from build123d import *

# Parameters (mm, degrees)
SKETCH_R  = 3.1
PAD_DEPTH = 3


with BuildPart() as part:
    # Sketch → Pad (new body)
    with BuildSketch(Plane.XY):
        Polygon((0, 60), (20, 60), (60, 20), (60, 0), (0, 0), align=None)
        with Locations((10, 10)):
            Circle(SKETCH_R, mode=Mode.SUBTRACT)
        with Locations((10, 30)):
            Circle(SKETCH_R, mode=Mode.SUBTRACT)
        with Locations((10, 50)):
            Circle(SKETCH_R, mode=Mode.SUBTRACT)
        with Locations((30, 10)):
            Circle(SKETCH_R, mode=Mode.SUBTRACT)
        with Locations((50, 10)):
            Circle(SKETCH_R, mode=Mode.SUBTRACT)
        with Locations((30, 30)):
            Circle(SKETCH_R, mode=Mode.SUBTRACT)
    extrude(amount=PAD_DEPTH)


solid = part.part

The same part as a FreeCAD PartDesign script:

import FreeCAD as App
import Part
import Sketcher

V = App.Vector


def add_polygon(sketch, points):
    """Adds a closed chain of lines whose ends are joined by coincident constraints."""
    first, n = sketch.GeometryCount, len(points)
    for a, b in zip(points, points[1:] + points[:1]):
        sketch.addGeometry(Part.LineSegment(App.Vector(*a, 0), App.Vector(*b, 0)), False)
    for i in range(n):
        sketch.addConstraint(Sketcher.Constraint("Coincident", first + i, 2, first + (i + 1) % n, 1))

doc = App.newDocument("Part")
params = doc.addObject("Spreadsheet::Sheet", "Params")
for row, (alias, value) in enumerate([
    ("sketch1_diameter", "6.2 mm"),
    ("sketch1_width", "20 mm"),
    ("sketch1_width2", "60 mm"),
    ("pad1_length", "3 mm"),
], start=1):
    params.set(f"A{row}", alias)
    params.set(f"B{row}", "=" + value)
    params.setAlias(f"B{row}", alias)

body = doc.addObject("PartDesign::Body", "Body")

# Sketch on XY plane
sketch1 = body.newObject("Sketcher::SketchObject", "Sketch")
sketch1.AttachmentSupport = (doc.getObject("XY_Plane"), [""])
sketch1.MapMode = "FlatFace"
add_polygon(sketch1, [(20, 60), (0, 60), (0, 0), (60, 0), (60, 20)])  # lines 0-4
sketch1.addGeometry(Part.Circle(V(50, 10, 0), V(0, 0, 1), 3.1), False)  # 5
sketch1.addGeometry(Part.Circle(V(30, 10, 0), V(0, 0, 1), 3.1), False)  # 6
sketch1.addGeometry(Part.Circle(V(10, 10, 0), V(0, 0, 1), 3.1), False)  # 7
sketch1.addGeometry(Part.Circle(V(30, 30, 0), V(0, 0, 1), 3.1), False)  # 8
sketch1.addGeometry(Part.Circle(V(10, 30, 0), V(0, 0, 1), 3.1), False)  # 9
sketch1.addGeometry(Part.Circle(V(10, 50, 0), V(0, 0, 1), 3.1), False)  # 10
sketch1.addConstraint(Sketcher.Constraint("Horizontal", 0))
sketch1.addConstraint(Sketcher.Constraint("Vertical", 1))
sketch1.addConstraint(Sketcher.Constraint("Horizontal", 2))
sketch1.addConstraint(Sketcher.Constraint("Vertical", 3))
sketch1.addConstraint(Sketcher.Constraint("Coincident", 1, 2, -1, 1))
sketch1.addConstraint(Sketcher.Constraint("Equal", 5, 6))
sketch1.addConstraint(Sketcher.Constraint("Equal", 6, 7))
sketch1.addConstraint(Sketcher.Constraint("Equal", 7, 8))
sketch1.addConstraint(Sketcher.Constraint("Equal", 8, 9))
sketch1.addConstraint(Sketcher.Constraint("Equal", 9, 10))
sketch1.addConstraint(Sketcher.Constraint("Horizontal", 5, 3, 6, 3))
sketch1.addConstraint(Sketcher.Constraint("Horizontal", 6, 3, 7, 3))
sketch1.addConstraint(Sketcher.Constraint("Horizontal", 8, 3, 9, 3))
sketch1.addConstraint(Sketcher.Constraint("Vertical", 6, 3, 8, 3))
sketch1.addConstraint(Sketcher.Constraint("Vertical", 7, 3, 9, 3))
sketch1.addConstraint(Sketcher.Constraint("Vertical", 9, 3, 10, 3))
sketch1.addConstraint(Sketcher.Constraint("Equal", 2, 1))
sketch1.addConstraint(Sketcher.Constraint("Equal", 0, 3))
sketch1.addConstraint(Sketcher.Constraint("Diameter", 5, 6.2))
sketch1.addConstraint(Sketcher.Constraint("DistanceX", 0, 2, 0, 1, 20.0))
sketch1.addConstraint(Sketcher.Constraint("DistanceX", 2, 1, 2, 2, 60.0))
sketch1.addConstraint(Sketcher.Constraint("DistanceX", -1, 1, 5, 3, 50.0))
sketch1.addConstraint(Sketcher.Constraint("DistanceY", -1, 1, 5, 3, 10.0))
sketch1.addConstraint(Sketcher.Constraint("DistanceX", -1, 1, 6, 3, 30.0))
sketch1.addConstraint(Sketcher.Constraint("DistanceX", -1, 1, 7, 3, 10.0))
sketch1.addConstraint(Sketcher.Constraint("DistanceY", -1, 1, 8, 3, 30.0))
sketch1.addConstraint(Sketcher.Constraint("DistanceY", -1, 1, 10, 3, 50.0))
sketch1.setExpression("Constraints[23]", "Params.sketch1_diameter")
sketch1.setExpression("Constraints[24]", "Params.sketch1_width")
sketch1.setExpression("Constraints[25]", "Params.sketch1_width2")
pad1 = body.newObject("PartDesign::Pad", "Pad")
pad1.Profile = sketch1
pad1.setExpression("Length", "Params.pad1_length")

doc.recompute()
